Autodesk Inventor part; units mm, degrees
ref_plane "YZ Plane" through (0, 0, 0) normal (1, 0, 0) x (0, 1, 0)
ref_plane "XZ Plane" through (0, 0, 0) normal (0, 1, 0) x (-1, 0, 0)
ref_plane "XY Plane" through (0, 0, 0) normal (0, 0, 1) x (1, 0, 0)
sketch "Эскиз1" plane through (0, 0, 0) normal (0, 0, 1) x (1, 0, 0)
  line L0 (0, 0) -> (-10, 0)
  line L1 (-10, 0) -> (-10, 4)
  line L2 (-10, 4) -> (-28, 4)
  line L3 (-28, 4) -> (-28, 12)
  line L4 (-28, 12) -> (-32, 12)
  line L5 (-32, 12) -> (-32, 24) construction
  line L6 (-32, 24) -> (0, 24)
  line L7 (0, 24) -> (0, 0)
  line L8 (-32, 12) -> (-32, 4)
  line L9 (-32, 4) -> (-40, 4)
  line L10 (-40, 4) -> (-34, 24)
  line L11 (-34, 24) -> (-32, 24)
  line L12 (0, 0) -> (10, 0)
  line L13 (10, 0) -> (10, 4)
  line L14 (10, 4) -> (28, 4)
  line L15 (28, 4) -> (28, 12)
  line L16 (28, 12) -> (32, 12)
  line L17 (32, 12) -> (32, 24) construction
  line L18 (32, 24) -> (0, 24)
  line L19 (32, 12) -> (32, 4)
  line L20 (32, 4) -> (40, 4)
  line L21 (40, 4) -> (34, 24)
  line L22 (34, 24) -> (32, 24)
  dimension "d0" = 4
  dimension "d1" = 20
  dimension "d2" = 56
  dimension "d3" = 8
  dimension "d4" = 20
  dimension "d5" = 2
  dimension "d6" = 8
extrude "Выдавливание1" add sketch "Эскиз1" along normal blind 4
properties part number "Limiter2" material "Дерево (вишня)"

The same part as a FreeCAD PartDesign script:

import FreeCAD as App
import Part
import Sketcher

V = App.Vector


def add_polygon(sketch, points):
    """Adds a closed chain of lines whose ends are joined by coincident constraints."""
    first, n = sketch.GeometryCount, len(points)
    for a, b in zip(points, points[1:] + points[:1]):
        sketch.addGeometry(Part.LineSegment(App.Vector(*a, 0), App.Vector(*b, 0)), False)
    for i in range(n):
        sketch.addConstraint(Sketcher.Constraint("Coincident", first + i, 2, first + (i + 1) % n, 1))

doc = App.newDocument("Part")
body = doc.addObject("PartDesign::Body", "Body")

# Sketch on XY plane
sketch1 = body.newObject("Sketcher::SketchObject", "Sketch")
sketch1.AttachmentSupport = (doc.getObject("XY_Plane"), [""])
sketch1.MapMode = "FlatFace"
add_polygon(sketch1, [(-10, 0), (10, 0), (10, 4), (28, 4), (28, 12), (32, 12), (32, 4), (40, 4), (34, 24), (-34, 24), (-40, 4), (-32, 4), (-32, 12), (-28, 12), (-28, 4), (-10, 4)])  # lines 0-15
sketch1.addConstraint([
    Sketcher.Constraint("Horizontal", 0),
    Sketcher.Constraint("Vertical", 1),
    Sketcher.Constraint("Horizontal", 2),
    Sketcher.Constraint("Vertical", 3),
    Sketcher.Constraint("Horizontal", 4),
    Sketcher.Constraint("Vertical", 5),
    Sketcher.Constraint("Horizontal", 6),
    Sketcher.Constraint("Horizontal", 8),
    Sketcher.Constraint("Horizontal", 10),
    Sketcher.Constraint("Vertical", 11),
    Sketcher.Constraint("Horizontal", 12),
    Sketcher.Constraint("Vertical", 13),
    Sketcher.Constraint("Horizontal", 14),
    Sketcher.Constraint("Vertical", 15),
    Sketcher.Constraint("Symmetric", 0, 2, 15, 2, -1, 1),
    Sketcher.Constraint("Symmetric", 6, 2, 9, 2, -2),
    Sketcher.Constraint("Symmetric", 4, 2, 11, 2, -2),
    Sketcher.Constraint("Symmetric", 2, 2, 13, 2, -2),
    Sketcher.Constraint("Horizontal", 2, 2, 5, 2),
    Sketcher.Constraint("Equal", 12, 1),
    Sketcher.Constraint("Equal", 10, 3),
    Sketcher.Constraint("Equal", 7, 9),
    Sketcher.Constraint("DistanceX", 0, 1, 0, 2, 20.0),
    Sketcher.Constraint("DistanceX", 4, 1, 4, 2, 4.0),
    Sketcher.Constraint("DistanceX", 6, 1, 6, 2, 8.0),
    Sketcher.Constraint("DistanceX", 4, 2, 7, 2, 2.0),
    Sketcher.Constraint("DistanceY", 5, 2, 7, 2, 20.0),
    Sketcher.Constraint("DistanceX", 2, 1, 2, 2, 18.0),
])
pad1 = body.newObject("PartDesign::Pad", "Pad")
pad1.Profile = sketch1
pad1.Length = 4

doc.recompute()
